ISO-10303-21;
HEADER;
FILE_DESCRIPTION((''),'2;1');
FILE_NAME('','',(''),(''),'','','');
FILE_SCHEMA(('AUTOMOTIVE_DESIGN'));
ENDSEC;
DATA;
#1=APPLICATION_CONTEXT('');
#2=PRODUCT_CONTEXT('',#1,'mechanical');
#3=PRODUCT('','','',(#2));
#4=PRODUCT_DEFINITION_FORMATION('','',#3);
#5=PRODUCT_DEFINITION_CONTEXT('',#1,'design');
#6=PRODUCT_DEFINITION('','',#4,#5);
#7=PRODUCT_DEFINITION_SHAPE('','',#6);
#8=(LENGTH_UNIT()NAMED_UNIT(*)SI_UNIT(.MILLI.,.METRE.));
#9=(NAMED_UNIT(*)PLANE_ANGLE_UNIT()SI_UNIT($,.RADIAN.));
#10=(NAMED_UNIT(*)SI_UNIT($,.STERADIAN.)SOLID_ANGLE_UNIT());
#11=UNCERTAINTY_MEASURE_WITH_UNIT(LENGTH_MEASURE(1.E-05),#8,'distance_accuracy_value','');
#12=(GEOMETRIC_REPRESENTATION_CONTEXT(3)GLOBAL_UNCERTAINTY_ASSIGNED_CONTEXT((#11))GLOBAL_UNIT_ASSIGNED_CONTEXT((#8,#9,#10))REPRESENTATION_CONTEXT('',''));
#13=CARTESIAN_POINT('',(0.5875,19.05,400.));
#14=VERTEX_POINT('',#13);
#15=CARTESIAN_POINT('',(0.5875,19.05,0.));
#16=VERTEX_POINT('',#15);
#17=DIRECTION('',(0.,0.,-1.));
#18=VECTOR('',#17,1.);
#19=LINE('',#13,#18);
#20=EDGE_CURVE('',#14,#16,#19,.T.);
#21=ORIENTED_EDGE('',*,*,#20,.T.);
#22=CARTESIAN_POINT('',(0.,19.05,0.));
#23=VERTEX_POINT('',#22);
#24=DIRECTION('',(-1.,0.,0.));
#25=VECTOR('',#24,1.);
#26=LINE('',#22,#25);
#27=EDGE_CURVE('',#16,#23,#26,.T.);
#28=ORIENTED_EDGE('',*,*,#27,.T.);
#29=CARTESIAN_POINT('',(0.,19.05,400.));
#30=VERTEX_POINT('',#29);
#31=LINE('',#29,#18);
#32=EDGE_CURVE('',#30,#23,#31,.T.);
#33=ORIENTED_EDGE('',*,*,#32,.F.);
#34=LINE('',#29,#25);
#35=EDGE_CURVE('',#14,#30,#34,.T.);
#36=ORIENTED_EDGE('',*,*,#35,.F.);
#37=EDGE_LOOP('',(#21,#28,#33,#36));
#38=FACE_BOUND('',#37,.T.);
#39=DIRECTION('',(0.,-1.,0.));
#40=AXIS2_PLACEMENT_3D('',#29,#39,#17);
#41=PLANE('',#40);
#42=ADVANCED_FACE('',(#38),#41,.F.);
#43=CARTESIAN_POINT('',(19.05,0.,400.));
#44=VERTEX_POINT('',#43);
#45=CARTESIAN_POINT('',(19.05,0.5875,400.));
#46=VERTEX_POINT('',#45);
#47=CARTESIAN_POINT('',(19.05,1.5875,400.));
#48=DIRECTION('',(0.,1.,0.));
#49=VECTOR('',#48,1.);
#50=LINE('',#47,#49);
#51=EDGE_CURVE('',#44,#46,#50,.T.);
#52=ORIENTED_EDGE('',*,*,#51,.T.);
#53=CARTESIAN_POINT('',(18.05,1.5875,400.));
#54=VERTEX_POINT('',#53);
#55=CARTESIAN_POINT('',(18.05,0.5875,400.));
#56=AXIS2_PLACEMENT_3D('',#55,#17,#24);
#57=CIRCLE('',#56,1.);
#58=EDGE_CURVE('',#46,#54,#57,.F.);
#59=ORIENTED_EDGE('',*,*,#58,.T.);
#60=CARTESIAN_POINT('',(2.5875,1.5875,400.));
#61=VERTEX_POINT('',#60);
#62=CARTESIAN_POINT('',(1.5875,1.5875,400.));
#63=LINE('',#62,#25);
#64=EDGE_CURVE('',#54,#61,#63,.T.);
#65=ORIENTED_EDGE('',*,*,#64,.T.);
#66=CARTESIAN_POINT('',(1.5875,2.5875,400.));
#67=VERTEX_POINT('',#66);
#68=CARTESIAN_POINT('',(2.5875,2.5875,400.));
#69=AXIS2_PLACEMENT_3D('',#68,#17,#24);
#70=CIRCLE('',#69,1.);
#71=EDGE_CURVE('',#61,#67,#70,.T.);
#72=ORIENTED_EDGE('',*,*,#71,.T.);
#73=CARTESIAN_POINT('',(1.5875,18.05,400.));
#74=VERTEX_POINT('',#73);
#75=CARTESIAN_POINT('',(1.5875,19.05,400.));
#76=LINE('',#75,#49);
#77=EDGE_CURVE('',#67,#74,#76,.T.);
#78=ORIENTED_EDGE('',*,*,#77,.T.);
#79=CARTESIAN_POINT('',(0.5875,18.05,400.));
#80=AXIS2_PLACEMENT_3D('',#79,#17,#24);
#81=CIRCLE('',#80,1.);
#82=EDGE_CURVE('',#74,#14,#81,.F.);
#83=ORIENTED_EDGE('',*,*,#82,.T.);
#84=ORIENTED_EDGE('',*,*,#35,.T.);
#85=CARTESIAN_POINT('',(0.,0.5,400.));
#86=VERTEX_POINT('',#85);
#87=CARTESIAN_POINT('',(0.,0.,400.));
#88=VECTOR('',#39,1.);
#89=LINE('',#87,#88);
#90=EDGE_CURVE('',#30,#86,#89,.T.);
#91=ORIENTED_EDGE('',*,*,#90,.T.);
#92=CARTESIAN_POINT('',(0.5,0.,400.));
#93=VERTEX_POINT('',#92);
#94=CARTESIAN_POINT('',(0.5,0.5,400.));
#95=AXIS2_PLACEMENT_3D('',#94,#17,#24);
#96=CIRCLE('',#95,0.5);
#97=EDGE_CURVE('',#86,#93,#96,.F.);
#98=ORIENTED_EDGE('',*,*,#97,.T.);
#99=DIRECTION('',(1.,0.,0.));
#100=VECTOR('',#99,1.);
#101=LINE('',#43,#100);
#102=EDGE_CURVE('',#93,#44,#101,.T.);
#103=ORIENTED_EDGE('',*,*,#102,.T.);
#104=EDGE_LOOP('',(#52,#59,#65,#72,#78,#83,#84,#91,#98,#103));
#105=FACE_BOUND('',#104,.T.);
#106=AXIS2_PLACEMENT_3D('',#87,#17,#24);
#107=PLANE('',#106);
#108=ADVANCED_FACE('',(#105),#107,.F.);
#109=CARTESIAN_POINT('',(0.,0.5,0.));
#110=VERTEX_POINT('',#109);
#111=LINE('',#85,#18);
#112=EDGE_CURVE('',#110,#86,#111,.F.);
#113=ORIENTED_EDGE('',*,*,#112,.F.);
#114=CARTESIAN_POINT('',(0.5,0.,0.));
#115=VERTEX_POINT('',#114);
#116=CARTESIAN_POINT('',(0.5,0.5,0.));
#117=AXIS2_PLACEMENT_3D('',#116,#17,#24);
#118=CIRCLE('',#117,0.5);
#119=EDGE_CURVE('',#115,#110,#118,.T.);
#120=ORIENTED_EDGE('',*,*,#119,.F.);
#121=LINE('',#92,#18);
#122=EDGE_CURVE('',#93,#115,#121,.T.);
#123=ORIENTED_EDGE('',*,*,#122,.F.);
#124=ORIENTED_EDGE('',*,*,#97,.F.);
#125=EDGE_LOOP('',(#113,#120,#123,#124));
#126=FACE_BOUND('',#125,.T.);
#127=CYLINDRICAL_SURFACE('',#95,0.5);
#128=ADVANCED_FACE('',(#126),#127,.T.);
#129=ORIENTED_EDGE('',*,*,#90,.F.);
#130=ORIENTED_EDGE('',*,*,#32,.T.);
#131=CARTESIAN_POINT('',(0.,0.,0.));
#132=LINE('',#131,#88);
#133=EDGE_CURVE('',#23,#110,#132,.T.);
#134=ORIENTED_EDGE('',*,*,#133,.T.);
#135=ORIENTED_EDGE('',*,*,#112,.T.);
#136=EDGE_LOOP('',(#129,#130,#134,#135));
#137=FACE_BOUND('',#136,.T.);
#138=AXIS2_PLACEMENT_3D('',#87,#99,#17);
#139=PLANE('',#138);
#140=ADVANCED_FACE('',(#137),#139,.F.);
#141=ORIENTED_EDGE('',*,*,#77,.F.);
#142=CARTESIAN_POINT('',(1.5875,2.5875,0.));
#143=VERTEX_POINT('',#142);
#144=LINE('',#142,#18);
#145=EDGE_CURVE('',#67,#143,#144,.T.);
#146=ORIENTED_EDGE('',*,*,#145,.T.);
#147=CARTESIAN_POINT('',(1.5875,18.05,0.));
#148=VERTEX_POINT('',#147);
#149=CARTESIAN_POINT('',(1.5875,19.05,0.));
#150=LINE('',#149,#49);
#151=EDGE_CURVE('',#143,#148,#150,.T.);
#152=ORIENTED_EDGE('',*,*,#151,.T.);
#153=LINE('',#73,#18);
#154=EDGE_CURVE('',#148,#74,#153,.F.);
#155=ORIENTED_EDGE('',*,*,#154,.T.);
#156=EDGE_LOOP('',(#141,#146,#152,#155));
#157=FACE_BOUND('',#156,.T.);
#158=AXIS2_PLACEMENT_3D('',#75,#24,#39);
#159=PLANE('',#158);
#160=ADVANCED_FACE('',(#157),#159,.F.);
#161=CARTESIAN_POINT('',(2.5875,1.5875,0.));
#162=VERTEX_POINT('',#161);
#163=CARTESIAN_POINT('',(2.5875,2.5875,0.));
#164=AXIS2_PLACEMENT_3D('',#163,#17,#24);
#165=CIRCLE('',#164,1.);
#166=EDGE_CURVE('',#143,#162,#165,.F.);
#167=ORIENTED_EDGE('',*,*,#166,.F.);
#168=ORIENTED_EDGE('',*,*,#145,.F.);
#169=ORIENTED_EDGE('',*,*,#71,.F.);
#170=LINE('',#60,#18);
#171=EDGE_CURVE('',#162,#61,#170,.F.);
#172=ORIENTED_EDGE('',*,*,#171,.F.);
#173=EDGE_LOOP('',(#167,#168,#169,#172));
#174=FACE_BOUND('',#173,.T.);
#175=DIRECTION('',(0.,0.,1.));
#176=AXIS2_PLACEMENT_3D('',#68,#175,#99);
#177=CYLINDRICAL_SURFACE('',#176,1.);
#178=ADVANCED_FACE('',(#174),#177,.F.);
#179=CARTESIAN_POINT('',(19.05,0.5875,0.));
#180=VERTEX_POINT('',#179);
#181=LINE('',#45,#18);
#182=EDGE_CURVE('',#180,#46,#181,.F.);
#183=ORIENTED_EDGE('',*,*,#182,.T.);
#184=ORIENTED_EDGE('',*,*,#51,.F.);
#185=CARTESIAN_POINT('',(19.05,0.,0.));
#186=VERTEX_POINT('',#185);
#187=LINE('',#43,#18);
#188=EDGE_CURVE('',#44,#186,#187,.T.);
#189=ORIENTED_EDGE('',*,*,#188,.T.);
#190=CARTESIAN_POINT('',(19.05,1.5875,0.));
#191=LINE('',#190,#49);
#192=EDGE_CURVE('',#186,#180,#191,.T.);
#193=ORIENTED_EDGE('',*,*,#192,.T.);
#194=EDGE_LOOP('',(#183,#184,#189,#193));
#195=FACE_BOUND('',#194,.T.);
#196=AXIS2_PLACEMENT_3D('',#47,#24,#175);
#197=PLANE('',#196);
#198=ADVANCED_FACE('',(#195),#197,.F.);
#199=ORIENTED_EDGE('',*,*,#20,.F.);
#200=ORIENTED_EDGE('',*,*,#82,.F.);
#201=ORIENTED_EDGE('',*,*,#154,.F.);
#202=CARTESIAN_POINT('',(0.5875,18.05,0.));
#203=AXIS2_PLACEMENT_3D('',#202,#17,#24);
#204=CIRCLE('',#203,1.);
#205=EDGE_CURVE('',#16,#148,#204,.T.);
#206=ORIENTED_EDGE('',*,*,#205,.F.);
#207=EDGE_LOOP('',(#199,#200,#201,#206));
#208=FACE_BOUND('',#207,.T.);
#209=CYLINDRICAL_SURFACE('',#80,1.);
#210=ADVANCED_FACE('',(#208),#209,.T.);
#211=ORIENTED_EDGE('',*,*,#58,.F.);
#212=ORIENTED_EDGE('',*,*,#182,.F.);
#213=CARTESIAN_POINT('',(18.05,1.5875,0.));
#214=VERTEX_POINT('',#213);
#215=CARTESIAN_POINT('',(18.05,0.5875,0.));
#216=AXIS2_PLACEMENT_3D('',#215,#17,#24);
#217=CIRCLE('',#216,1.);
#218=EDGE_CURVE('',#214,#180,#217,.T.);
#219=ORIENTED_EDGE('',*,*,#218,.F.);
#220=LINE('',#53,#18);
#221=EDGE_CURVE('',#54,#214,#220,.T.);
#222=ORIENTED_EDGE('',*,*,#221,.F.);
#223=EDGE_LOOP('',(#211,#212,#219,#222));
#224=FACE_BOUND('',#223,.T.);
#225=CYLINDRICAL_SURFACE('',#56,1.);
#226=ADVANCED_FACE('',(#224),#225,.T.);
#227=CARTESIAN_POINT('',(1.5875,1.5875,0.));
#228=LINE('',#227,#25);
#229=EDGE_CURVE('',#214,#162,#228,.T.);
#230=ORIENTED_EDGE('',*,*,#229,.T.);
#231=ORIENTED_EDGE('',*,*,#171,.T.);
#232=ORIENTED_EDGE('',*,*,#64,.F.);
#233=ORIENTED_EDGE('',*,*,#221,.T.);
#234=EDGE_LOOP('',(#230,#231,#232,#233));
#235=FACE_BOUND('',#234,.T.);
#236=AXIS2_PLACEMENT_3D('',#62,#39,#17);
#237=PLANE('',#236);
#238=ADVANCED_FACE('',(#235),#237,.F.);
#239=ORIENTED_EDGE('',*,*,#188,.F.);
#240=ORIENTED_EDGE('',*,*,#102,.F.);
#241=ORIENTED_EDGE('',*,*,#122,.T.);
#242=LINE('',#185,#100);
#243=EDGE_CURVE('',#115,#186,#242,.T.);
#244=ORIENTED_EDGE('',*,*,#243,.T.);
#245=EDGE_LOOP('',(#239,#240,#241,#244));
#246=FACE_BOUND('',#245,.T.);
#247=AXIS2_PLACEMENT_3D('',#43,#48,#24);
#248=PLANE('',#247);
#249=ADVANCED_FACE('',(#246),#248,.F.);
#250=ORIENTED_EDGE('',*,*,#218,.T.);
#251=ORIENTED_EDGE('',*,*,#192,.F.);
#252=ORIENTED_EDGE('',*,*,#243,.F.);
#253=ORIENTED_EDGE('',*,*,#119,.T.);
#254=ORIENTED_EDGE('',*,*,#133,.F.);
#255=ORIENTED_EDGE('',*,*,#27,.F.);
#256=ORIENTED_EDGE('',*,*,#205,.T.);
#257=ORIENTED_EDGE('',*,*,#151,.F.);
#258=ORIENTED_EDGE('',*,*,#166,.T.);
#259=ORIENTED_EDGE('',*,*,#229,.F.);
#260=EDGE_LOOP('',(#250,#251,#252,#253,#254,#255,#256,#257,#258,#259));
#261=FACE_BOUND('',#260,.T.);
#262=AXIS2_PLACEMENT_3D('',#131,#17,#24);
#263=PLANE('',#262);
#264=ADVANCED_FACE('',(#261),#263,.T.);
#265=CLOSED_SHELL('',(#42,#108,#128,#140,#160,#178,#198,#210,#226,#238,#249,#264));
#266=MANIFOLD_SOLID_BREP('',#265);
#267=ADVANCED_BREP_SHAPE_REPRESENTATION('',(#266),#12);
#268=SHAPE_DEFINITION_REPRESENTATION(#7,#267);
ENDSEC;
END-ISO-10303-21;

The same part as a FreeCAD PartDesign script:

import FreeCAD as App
import Part
import Sketcher
Q = App.Units.Quantity


def edges_at(feature, points):
    """Names of the edges that pass closest to the given points."""
    edges = feature.Shape.Edges
    near = lambda p: min(range(len(edges)), key=lambda i: edges[i].distToShape(Part.Vertex(*p))[0])
    return sorted({f"Edge{near(p) + 1}" for p in points})

doc = App.newDocument("Part")
body = doc.addObject("PartDesign::Body", "Body")

# Sketch on XY plane
sketch1 = body.newObject("Sketcher::SketchObject", "Sketch")
sketch1.AttachmentSupport = (doc.getObject("XY_Plane"), [""])
sketch1.MapMode = "FlatFace"
sketch1.addGeometry([
    Part.LineSegment(App.Vector(0, 19.1, 0), App.Vector(0, 0, 0)),  # 0
    Part.LineSegment(App.Vector(0, 0, 0), App.Vector(19.1, 0, 0)),  # 1
    Part.LineSegment(App.Vector(19.1, 0, 0), App.Vector(19.1, 1.6, 0)),  # 2
    Part.LineSegment(App.Vector(19.1, 1.6, 0), App.Vector(1.6, 1.6, 0)),  # 3
    Part.LineSegment(App.Vector(1.6, 1.6, 0), App.Vector(1.6, 19.1, 0)),  # 4
    Part.LineSegment(App.Vector(1.6, 19.1, 0), App.Vector(0, 19.1, 0)),  # 5
], False)
sketch1.addConstraint([
    Sketcher.Constraint("Coincident", 0, 2, 1, 1),
    Sketcher.Constraint("Coincident", 1, 2, 2, 1),
    Sketcher.Constraint("Coincident", 2, 2, 3, 1),
    Sketcher.Constraint("Coincident", 3, 2, 4, 1),
    Sketcher.Constraint("Coincident", 4, 2, 5, 1),
    Sketcher.Constraint("Coincident", 5, 2, 0, 1),
    Sketcher.Constraint("Vertical", 0),
    Sketcher.Constraint("Horizontal", 1),
    Sketcher.Constraint("Vertical", 2),
    Sketcher.Constraint("Horizontal", 3),
    Sketcher.Constraint("Vertical", 4),
    Sketcher.Constraint("Horizontal", 5),
    Sketcher.Constraint("Coincident", 0, 2, -1, 1),
    Sketcher.Constraint("Equal", 1, 0),
    Sketcher.Constraint("Equal", 5, 2),
    Sketcher.Constraint("DistanceX", 1, 1, 1, 2, Q("19.05 mm")),
    Sketcher.Constraint("DistanceX", 3, 2, 3, 1, Q("17.4625 mm")),
])
pad1 = body.newObject("PartDesign::Pad", "Pad")
pad1.Profile = sketch1
pad1.Length = 400
doc.recompute()

fillet = body.newObject("PartDesign::Fillet", "Fillet")
fillet.Base = (pad1, edges_at(pad1, [(1.587, 19.05, 200), (1.587, 1.587, 200), (19.05, 1.587, 200)]))
fillet.Radius = 1
doc.recompute()

fillet2 = body.newObject("PartDesign::Fillet", "Fillet001")
fillet2.Base = (fillet, edges_at(fillet, [(0, 0, 200)]))
fillet2.Radius = 0.5

doc.recompute()
